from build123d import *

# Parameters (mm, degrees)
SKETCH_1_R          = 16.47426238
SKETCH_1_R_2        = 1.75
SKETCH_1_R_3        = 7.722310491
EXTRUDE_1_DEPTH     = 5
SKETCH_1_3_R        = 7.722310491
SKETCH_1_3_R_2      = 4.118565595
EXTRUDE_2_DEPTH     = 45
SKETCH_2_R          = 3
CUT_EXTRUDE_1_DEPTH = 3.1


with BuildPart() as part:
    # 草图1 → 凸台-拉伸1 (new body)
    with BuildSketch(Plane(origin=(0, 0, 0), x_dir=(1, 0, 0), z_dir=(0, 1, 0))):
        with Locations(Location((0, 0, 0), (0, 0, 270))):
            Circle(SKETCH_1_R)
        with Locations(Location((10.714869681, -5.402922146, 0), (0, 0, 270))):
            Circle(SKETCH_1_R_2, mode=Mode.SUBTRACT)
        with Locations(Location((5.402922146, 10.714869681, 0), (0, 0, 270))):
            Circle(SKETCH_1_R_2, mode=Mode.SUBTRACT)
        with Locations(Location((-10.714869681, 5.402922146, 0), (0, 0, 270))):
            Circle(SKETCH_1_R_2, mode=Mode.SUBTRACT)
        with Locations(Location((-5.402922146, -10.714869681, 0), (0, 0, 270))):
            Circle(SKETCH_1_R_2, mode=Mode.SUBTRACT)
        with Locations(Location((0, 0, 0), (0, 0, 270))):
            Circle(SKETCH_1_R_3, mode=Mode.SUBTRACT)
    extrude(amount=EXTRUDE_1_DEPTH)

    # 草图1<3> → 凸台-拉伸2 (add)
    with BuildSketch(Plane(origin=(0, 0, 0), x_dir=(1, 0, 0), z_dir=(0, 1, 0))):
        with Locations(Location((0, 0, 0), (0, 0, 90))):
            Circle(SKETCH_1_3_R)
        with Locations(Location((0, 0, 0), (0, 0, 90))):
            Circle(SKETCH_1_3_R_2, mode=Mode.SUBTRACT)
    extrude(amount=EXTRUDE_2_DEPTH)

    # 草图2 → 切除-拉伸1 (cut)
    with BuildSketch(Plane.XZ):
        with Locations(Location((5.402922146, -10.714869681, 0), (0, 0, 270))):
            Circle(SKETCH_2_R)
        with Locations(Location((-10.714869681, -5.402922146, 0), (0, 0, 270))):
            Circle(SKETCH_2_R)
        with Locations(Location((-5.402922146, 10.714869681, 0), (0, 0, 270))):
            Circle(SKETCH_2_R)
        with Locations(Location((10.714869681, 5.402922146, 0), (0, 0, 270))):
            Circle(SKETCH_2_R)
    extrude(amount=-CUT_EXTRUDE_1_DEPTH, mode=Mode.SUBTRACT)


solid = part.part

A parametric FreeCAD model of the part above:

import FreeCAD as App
import Part
import Sketcher
from FreeCAD import Vector
Q = App.Units.Quantity

doc = App.newDocument("Part")
body = doc.addObject("PartDesign::Body", "Body")

# Sketch on XZ plane
sketch1 = body.newObject("Sketcher::SketchObject", "Sketch")
sketch1.AttachmentSupport = (doc.getObject("XZ_Plane"), [""])
sketch1.MapMode = "FlatFace"
sketch1.addGeometry(Part.Circle(Vector(0, 0, 0), Vector(0, 0, 1), 16.474262), False)
sketch1.addGeometry(Part.Circle(Vector(-10.71487, -5.402922, 0), Vector(0, 0, 1), 1.75), False)
sketch1.addGeometry(Part.Circle(Vector(0, 0, 0), Vector(0, 0, 1), 7.72231), False)
sketch1.addGeometry(Part.Circle(Vector(-5.402922, 10.71487, 0), Vector(0, 0, 1), 1.75), False)
sketch1.addGeometry(Part.Circle(Vector(5.402922, -10.71487, 0), Vector(0, 0, 1), 1.75), False)
sketch1.addGeometry(Part.Circle(Vector(10.71487, 5.402922, 0), Vector(0, 0, 1), 1.75), False)
sketch1.addConstraint(Sketcher.Constraint("Coincident", 0, 3, -1, 1))
sketch1.addConstraint(Sketcher.Constraint("Coincident", 2, 3, -1, 1))
sketch1.addConstraint(Sketcher.Constraint("Equal", 1, 3))
sketch1.addConstraint(Sketcher.Constraint("Equal", 3, 4))
sketch1.addConstraint(Sketcher.Constraint("Equal", 4, 5))
sketch1.addConstraint(Sketcher.Constraint("Symmetric", 3, 3, 4, 3, -1, 1))
sketch1.addConstraint(Sketcher.Constraint("Symmetric", 1, 3, 5, 3, -1, 1))
sketch1.addConstraint(Sketcher.Constraint("Diameter", 1, Q("3.5 mm")))
sketch1.addConstraint(Sketcher.Constraint("Diameter", 2, Q("15.444621 mm")))
sketch1.addConstraint(Sketcher.Constraint("Diameter", 0, Q("32.948525 mm")))
sketch1.addConstraint(Sketcher.Constraint("DistanceX", 1, 3, -1, 1, Q("10.71487 mm")))
sketch1.addConstraint(Sketcher.Constraint("DistanceY", -1, 1, 3, 3, Q("10.71487 mm")))
sketch1.addConstraint(Sketcher.Constraint("DistanceY", 1, 3, 3, 3, Q("16.117792 mm")))
sketch1.addConstraint(Sketcher.Constraint("DistanceX", 1, 3, 4, 3, Q("16.117792 mm")))
pad1 = body.newObject("PartDesign::Pad", "Pad")
pad1.Profile = sketch1
pad1.Length = 5
pad1.Reversed = True

# Sketch on XZ plane
sketch2 = body.newObject("Sketcher::SketchObject", "Sketch001")
sketch2.AttachmentSupport = (doc.getObject("XZ_Plane"), [""])
sketch2.MapMode = "FlatFace"
sketch2.addGeometry(Part.Circle(Vector(0, 0, 0), Vector(0, 0, 1), 7.72231), False)
sketch2.addGeometry(Part.Circle(Vector(0, 0, 0), Vector(0, 0, 1), 4.118566), False)
sketch2.addConstraint(Sketcher.Constraint("Coincident", 0, 3, -1, 1))
sketch2.addConstraint(Sketcher.Constraint("Coincident", 1, 3, -1, 1))
sketch2.addConstraint(Sketcher.Constraint("Diameter", 0, Q("15.444621 mm")))
sketch2.addConstraint(Sketcher.Constraint("Diameter", 1, Q("8.237131 mm")))
pad2 = body.newObject("PartDesign::Pad", "Pad001")
pad2.Profile = sketch2
pad2.Length = 45
pad2.Reversed = True

# Sketch on XZ plane
sketch3 = body.newObject("Sketcher::SketchObject", "Sketch002")
sketch3.AttachmentSupport = (doc.getObject("XZ_Plane"), [""])
sketch3.MapMode = "FlatFace"
sketch3.addGeometry(Part.Circle(Vector(5.402922, -10.71487, 0), Vector(0, 0, 1), 3), False)
sketch3.addGeometry(Part.Circle(Vector(-10.71487, -5.402922, 0), Vector(0, 0, 1), 3), False)
sketch3.addGeometry(Part.Circle(Vector(-5.402922, 10.71487, 0), Vector(0, 0, 1), 3), False)
sketch3.addGeometry(Part.Circle(Vector(10.71487, 5.402922, 0), Vector(0, 0, 1), 3), False)
sketch3.addConstraint(Sketcher.Constraint("Equal", 0, 1))
sketch3.addConstraint(Sketcher.Constraint("Equal", 1, 2))
sketch3.addConstraint(Sketcher.Constraint("Equal", 2, 3))
sketch3.addConstraint(Sketcher.Constraint("Symmetric", 0, 3, 2, 3, -1, 1))
sketch3.addConstraint(Sketcher.Constraint("Symmetric", 1, 3, 3, 3, -1, 1))
sketch3.addConstraint(Sketcher.Constraint("Diameter", 0, Q("6 mm")))
sketch3.addConstraint(Sketcher.Constraint("DistanceY", 0, 3, -1, 1, Q("10.71487 mm")))
sketch3.addConstraint(Sketcher.Constraint("DistanceX", 1, 3, -1, 1, Q("10.71487 mm")))
sketch3.addConstraint(Sketcher.Constraint("DistanceX", 1, 3, 0, 3, Q("16.117792 mm")))
sketch3.addConstraint(Sketcher.Constraint("DistanceY", 1, 3, 2, 3, Q("16.117792 mm")))
pocket1 = body.newObject("PartDesign::Pocket", "Pocket")
pocket1.Profile = sketch3
pocket1.Length = 3.1

doc.recompute()
